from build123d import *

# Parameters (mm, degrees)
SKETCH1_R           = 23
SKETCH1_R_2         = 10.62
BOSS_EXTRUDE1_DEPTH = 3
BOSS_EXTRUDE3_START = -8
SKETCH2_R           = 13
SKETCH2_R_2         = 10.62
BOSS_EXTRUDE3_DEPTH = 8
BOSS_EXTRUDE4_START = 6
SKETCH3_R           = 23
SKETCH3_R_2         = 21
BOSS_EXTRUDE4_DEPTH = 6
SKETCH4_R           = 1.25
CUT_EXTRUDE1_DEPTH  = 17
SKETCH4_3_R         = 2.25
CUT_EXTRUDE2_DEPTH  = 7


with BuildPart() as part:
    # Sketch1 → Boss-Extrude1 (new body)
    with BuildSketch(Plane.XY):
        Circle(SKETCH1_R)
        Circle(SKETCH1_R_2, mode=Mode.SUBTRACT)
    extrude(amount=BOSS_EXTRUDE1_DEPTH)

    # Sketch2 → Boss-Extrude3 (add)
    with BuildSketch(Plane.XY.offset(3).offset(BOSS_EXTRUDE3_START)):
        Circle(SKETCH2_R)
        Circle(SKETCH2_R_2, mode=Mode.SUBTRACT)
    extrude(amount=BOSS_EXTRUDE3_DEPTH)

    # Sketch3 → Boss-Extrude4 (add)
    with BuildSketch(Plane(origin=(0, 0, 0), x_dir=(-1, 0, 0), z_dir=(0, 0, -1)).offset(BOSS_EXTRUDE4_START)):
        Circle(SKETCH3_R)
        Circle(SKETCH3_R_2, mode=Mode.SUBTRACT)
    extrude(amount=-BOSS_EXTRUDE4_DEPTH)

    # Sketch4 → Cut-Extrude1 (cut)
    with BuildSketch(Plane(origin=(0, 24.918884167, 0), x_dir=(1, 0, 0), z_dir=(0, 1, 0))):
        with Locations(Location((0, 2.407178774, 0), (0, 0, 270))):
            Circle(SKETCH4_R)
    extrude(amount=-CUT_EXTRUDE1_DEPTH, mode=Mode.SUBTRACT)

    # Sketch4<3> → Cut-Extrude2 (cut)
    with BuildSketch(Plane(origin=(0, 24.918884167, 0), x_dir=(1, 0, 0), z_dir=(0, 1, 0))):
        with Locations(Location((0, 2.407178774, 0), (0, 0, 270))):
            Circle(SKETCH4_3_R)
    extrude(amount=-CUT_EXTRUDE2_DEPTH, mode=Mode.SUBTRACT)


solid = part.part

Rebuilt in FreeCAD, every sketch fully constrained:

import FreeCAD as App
import Part
import Sketcher
from FreeCAD import Vector
Q = App.Units.Quantity

doc = App.newDocument("Part")
body = doc.addObject("PartDesign::Body", "Body")

sketch1 = body.newObject("Sketcher::SketchObject", "Sketch")
sketch1.AttachmentSupport = (doc.getObject("XY_Plane"), [""])
sketch1.MapMode = "FlatFace"
sketch1.addGeometry(Part.Circle(Vector(0, 0, 0), Vector(0, 0, 1), 23), False)
sketch1.addGeometry(Part.Circle(Vector(0, 0, 0), Vector(0, 0, 1), 10.62), False)
sketch1.addConstraint(Sketcher.Constraint("Coincident", 0, 3, -1, 1))
sketch1.addConstraint(Sketcher.Constraint("Coincident", 1, 3, -1, 1))
sketch1.addConstraint(Sketcher.Constraint("Diameter", 0, Q("46 mm")))
sketch1.addConstraint(Sketcher.Constraint("Diameter", 1, Q("21.24 mm")))
pad1 = body.newObject("PartDesign::Pad", "Pad")
pad1.Profile = sketch1
pad1.Length = 3

sketch2 = body.newObject("Sketcher::SketchObject", "Sketch001")
sketch2.AttachmentSupport = (doc.getObject("XY_Plane"), [""])
sketch2.MapMode = "FlatFace"
sketch2.AttachmentOffset = App.Placement(Vector(0, 0, -5), App.Rotation())
sketch2.addGeometry(Part.Circle(Vector(0, 0, 0), Vector(0, 0, 1), 13), False)
sketch2.addGeometry(Part.Circle(Vector(0, 0, 0), Vector(0, 0, 1), 10.62), False)
sketch2.addConstraint(Sketcher.Constraint("Coincident", 0, 3, -1, 1))
sketch2.addConstraint(Sketcher.Constraint("Coincident", 1, 3, -1, 1))
sketch2.addConstraint(Sketcher.Constraint("Diameter", 0, Q("26 mm")))
sketch2.addConstraint(Sketcher.Constraint("Diameter", 1, Q("21.24 mm")))
pad2 = body.newObject("PartDesign::Pad", "Pad001")
pad2.Profile = sketch2
pad2.Length = 8

sketch3 = body.newObject("Sketcher::SketchObject", "Sketch002")
sketch3.AttachmentSupport = (doc.getObject("XY_Plane"), [""])
sketch3.MapMode = "FlatFace"
sketch3.AttachmentOffset = App.Placement(Vector(0, 0, -6), App.Rotation())
sketch3.addGeometry(Part.Circle(Vector(0, 0, 0), Vector(0, 0, 1), 23), False)
sketch3.addGeometry(Part.Circle(Vector(0, 0, 0), Vector(0, 0, 1), 21), False)
sketch3.addConstraint(Sketcher.Constraint("Coincident", 0, 3, -1, 1))
sketch3.addConstraint(Sketcher.Constraint("Coincident", 1, 3, -1, 1))
sketch3.addConstraint(Sketcher.Constraint("Diameter", 0, Q("46 mm")))
sketch3.addConstraint(Sketcher.Constraint("Diameter", 1, Q("42 mm")))
pad3 = body.newObject("PartDesign::Pad", "Pad002")
pad3.Profile = sketch3
pad3.Length = 6

sketch4 = body.newObject("Sketcher::SketchObject", "Sketch003")
sketch4.AttachmentSupport = (doc.getObject("XZ_Plane"), [""])
sketch4.MapMode = "FlatFace"
sketch4.AttachmentOffset = App.Placement(Vector(0, 0, -24.918884), App.Rotation())
sketch4.addGeometry(Part.Circle(Vector(0, -2.407179, 0), Vector(0, 0, 1), 1.25), False)
sketch4.addConstraint(Sketcher.Constraint("PointOnObject", 0, 3, -2))
sketch4.addConstraint(Sketcher.Constraint("Diameter", 0, Q("2.5 mm")))
sketch4.addConstraint(Sketcher.Constraint("DistanceY", 0, 3, -1, 1, Q("2.407179 mm")))
pocket1 = body.newObject("PartDesign::Pocket", "Pocket")
pocket1.Profile = sketch4
pocket1.Length = 17
pocket1.Reversed = True

sketch5 = body.newObject("Sketcher::SketchObject", "Sketch004")
sketch5.AttachmentSupport = (doc.getObject("XZ_Plane"), [""])
sketch5.MapMode = "FlatFace"
sketch5.AttachmentOffset = App.Placement(Vector(0, 0, -24.918884), App.Rotation())
sketch5.addGeometry(Part.Circle(Vector(0, -2.407179, 0), Vector(0, 0, 1), 2.25), False)
sketch5.addConstraint(Sketcher.Constraint("PointOnObject", 0, 3, -2))
sketch5.addConstraint(Sketcher.Constraint("Diameter", 0, Q("4.5 mm")))
sketch5.addConstraint(Sketcher.Constraint("DistanceY", 0, 3, -1, 1, Q("2.407179 mm")))
pocket2 = body.newObject("PartDesign::Pocket", "Pocket001")
pocket2.Profile = sketch5
pocket2.Length = 7
pocket2.Reversed = True

doc.recompute()
